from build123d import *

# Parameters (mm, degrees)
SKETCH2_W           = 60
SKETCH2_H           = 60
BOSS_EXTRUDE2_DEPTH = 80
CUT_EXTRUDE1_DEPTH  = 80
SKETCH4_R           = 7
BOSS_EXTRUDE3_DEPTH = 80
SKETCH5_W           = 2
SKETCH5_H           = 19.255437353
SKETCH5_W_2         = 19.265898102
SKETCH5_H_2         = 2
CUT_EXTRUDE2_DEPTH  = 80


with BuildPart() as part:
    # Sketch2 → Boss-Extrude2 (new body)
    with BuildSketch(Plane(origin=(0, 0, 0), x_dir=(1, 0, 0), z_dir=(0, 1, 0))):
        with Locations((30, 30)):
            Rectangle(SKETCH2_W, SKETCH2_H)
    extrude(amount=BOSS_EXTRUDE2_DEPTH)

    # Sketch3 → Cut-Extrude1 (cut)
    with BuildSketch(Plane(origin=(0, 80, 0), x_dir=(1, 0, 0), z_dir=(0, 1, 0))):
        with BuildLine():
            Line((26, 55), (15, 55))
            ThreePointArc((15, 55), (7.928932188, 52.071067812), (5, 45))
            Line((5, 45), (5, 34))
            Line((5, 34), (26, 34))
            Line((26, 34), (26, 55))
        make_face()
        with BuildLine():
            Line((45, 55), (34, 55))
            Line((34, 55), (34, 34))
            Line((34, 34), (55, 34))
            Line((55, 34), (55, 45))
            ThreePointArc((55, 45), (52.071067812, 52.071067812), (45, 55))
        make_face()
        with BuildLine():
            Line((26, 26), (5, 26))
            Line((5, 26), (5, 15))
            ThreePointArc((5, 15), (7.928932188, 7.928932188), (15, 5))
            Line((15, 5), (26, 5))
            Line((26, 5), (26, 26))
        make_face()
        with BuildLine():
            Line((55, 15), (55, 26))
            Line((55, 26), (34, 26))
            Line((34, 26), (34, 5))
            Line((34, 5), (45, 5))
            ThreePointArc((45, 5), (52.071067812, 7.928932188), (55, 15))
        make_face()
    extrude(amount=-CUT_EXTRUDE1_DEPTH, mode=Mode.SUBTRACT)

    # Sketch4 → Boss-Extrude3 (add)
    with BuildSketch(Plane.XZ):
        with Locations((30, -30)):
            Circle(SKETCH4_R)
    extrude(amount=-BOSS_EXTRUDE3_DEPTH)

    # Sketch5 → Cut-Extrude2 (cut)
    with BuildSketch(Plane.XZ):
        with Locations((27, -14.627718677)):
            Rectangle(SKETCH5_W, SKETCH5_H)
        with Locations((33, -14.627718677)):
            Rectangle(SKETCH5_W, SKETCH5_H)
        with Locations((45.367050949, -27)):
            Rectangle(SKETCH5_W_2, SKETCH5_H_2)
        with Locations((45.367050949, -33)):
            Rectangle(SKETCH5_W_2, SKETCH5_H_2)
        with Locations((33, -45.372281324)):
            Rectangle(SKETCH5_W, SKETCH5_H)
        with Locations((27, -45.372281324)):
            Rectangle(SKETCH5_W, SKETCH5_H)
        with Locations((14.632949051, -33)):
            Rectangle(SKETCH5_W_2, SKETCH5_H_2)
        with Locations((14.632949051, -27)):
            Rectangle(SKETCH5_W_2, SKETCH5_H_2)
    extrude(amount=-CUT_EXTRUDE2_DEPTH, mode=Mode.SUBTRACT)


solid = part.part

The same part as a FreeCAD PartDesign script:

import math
import FreeCAD as App
import Part
import Sketcher
from FreeCAD import Vector


def add_polygon(sketch, points):
    """Adds a closed chain of lines whose ends are joined by coincident constraints."""
    first, n = sketch.GeometryCount, len(points)
    for a, b in zip(points, points[1:] + points[:1]):
        sketch.addGeometry(Part.LineSegment(App.Vector(*a, 0), App.Vector(*b, 0)), False)
    for i in range(n):
        sketch.addConstraint(Sketcher.Constraint("Coincident", first + i, 2, first + (i + 1) % n, 1))

doc = App.newDocument("Part")
body = doc.addObject("PartDesign::Body", "Body")

# Sketch on XZ plane
sketch1 = body.newObject("Sketcher::SketchObject", "Sketch")
sketch1.AttachmentSupport = (doc.getObject("XZ_Plane"), [""])
sketch1.MapMode = "FlatFace"
add_polygon(sketch1, [(0, -60), (0, 0), (60, 0), (60, -60)])  # lines 0-3
sketch1.addConstraint([
    Sketcher.Constraint("Vertical", 0),
    Sketcher.Constraint("Horizontal", 1),
    Sketcher.Constraint("Vertical", 2),
    Sketcher.Constraint("Horizontal", 3),
    Sketcher.Constraint("Coincident", 0, 2, -1, 1),
    Sketcher.Constraint("Equal", 3, 0),
    Sketcher.Constraint("DistanceX", 1, 1, 1, 2, 60.0),
])
pad1 = body.newObject("PartDesign::Pad", "Pad")
pad1.Profile = sketch1
pad1.Length = 80
pad1.Reversed = True

# Sketch on XZ plane
sketch2 = body.newObject("Sketcher::SketchObject", "Sketch001")
sketch2.AttachmentSupport = (doc.getObject("XZ_Plane"), [""])
sketch2.MapMode = "FlatFace"
sketch2.AttachmentOffset = App.Placement(Vector(0, 0, -80), App.Rotation())
sketch2.addGeometry([
    Part.LineSegment(Vector(26, -55, 0), Vector(15, -55, 0)),  # 0
    Part.ArcOfCircle(Part.Circle(Vector(15, -45, 0), Vector(0, 0, 1), 10), math.radians(180), math.radians(270)),  # 1
    Part.LineSegment(Vector(5, -45, 0), Vector(5, -34, 0)),  # 2
    Part.LineSegment(Vector(5, -34, 0), Vector(26, -34, 0)),  # 3
    Part.LineSegment(Vector(26, -34, 0), Vector(26, -55, 0)),  # 4
    Part.LineSegment(Vector(45, -55, 0), Vector(34, -55, 0)),  # 5
    Part.LineSegment(Vector(34, -55, 0), Vector(34, -34, 0)),  # 6
    Part.LineSegment(Vector(34, -34, 0), Vector(55, -34, 0)),  # 7
    Part.LineSegment(Vector(55, -34, 0), Vector(55, -45, 0)),  # 8
    Part.ArcOfCircle(Part.Circle(Vector(45, -45, 0), Vector(0, 0, 1), 10), math.radians(-90), math.radians(0)),  # 9
    Part.LineSegment(Vector(26, -26, 0), Vector(5, -26, 0)),  # 10
    Part.LineSegment(Vector(5, -26, 0), Vector(5, -15, 0)),  # 11
    Part.ArcOfCircle(Part.Circle(Vector(15, -15, 0), Vector(0, 0, 1), 10), math.radians(90), math.radians(180)),  # 12
    Part.LineSegment(Vector(15, -5, 0), Vector(26, -5, 0)),  # 13
    Part.LineSegment(Vector(26, -5, 0), Vector(26, -26, 0)),  # 14
    Part.LineSegment(Vector(55, -15, 0), Vector(55, -26, 0)),  # 15
    Part.LineSegment(Vector(55, -26, 0), Vector(34, -26, 0)),  # 16
    Part.LineSegment(Vector(34, -26, 0), Vector(34, -5, 0)),  # 17
    Part.LineSegment(Vector(34, -5, 0), Vector(45, -5, 0)),  # 18
    Part.ArcOfCircle(Part.Circle(Vector(45, -15, 0), Vector(0, 0, 1), 10), math.radians(0), math.radians(90)),  # 19
], False)
sketch2.addConstraint([
    Sketcher.Constraint("Tangent", 0, 2, 1, 2),
    Sketcher.Constraint("Tangent", 1, 1, 2, 1),
    Sketcher.Constraint("Coincident", 2, 2, 3, 1),
    Sketcher.Constraint("Coincident", 3, 2, 4, 1),
    Sketcher.Constraint("Coincident", 4, 2, 0, 1),
    Sketcher.Constraint("Coincident", 5, 2, 6, 1),
    Sketcher.Constraint("Coincident", 6, 2, 7, 1),
    Sketcher.Constraint("Coincident", 7, 2, 8, 1),
    Sketcher.Constraint("Tangent", 8, 2, 9, 2),
    Sketcher.Constraint("Tangent", 9, 1, 5, 1),
    Sketcher.Constraint("Coincident", 10, 2, 11, 1),
    Sketcher.Constraint("Tangent", 11, 2, 12, 2),
    Sketcher.Constraint("Tangent", 12, 1, 13, 1),
    Sketcher.Constraint("Coincident", 13, 2, 14, 1),
    Sketcher.Constraint("Coincident", 14, 2, 10, 1),
    Sketcher.Constraint("Coincident", 15, 2, 16, 1),
    Sketcher.Constraint("Coincident", 16, 2, 17, 1),
    Sketcher.Constraint("Coincident", 17, 2, 18, 1),
    Sketcher.Constraint("Tangent", 18, 2, 19, 2),
    Sketcher.Constraint("Tangent", 19, 1, 15, 1),
    Sketcher.Constraint("Horizontal", 0),
    Sketcher.Constraint("Vertical", 2),
    Sketcher.Constraint("Horizontal", 3),
    Sketcher.Constraint("Vertical", 4),
    Sketcher.Constraint("Horizontal", 5),
    Sketcher.Constraint("Vertical", 6),
    Sketcher.Constraint("Horizontal", 7),
    Sketcher.Constraint("Vertical", 8),
    Sketcher.Constraint("Horizontal", 10),
    Sketcher.Constraint("Vertical", 11),
    Sketcher.Constraint("Horizontal", 13),
    Sketcher.Constraint("Vertical", 14),
    Sketcher.Constraint("Vertical", 15),
    Sketcher.Constraint("Horizontal", 16),
    Sketcher.Constraint("Vertical", 17),
    Sketcher.Constraint("Horizontal", 18),
    Sketcher.Constraint("Equal", 1, 9),
    Sketcher.Constraint("Equal", 9, 12),
    Sketcher.Constraint("Equal", 12, 19),
    Sketcher.Constraint("Horizontal", 1, 3, 9, 3),
    Sketcher.Constraint("Horizontal", 12, 3, 19, 3),
    Sketcher.Constraint("Horizontal", 3, 2, 6, 2),
    Sketcher.Constraint("Horizontal", 14, 2, 15, 2),
    Sketcher.Constraint("Vertical", 1, 3, 12, 3),
    Sketcher.Constraint("Vertical", 9, 3, 19, 3),
    Sketcher.Constraint("Vertical", 4, 2, 13, 2),
    Sketcher.Constraint("Vertical", 6, 2, 16, 2),
    Sketcher.Constraint("Equal", 0, 5),
    Sketcher.Constraint("Equal", 18, 2),
    Sketcher.Constraint("Equal", 8, 11),
    Sketcher.Constraint("Radius", 1, 10.0),
    Sketcher.Constraint("DistanceX", 0, 2, 0, 1, 11.0),
    Sketcher.Constraint("DistanceX", -1, 1, 1, 3, 15.0),
    Sketcher.Constraint("DistanceY", 1, 3, -1, 1, 45.0),
    Sketcher.Constraint("DistanceX", -1, 1, 9, 3, 45.0),
    Sketcher.Constraint("DistanceY", 12, 3, -1, 1, 15.0),
])
pocket1 = body.newObject("PartDesign::Pocket", "Pocket")
pocket1.Profile = sketch2
pocket1.Length = 80
pocket1.Reversed = True

# Sketch on XZ plane
sketch3 = body.newObject("Sketcher::SketchObject", "Sketch002")
sketch3.AttachmentSupport = (doc.getObject("XZ_Plane"), [""])
sketch3.MapMode = "FlatFace"
sketch3.addGeometry(Part.Circle(Vector(30, -30, 0), Vector(0, 0, 1), 7), False)
sketch3.addConstraint([
    Sketcher.Constraint("Diameter", 0, 14.0),
    Sketcher.Constraint("DistanceX", -1, 1, 0, 3, 30.0),
    Sketcher.Constraint("DistanceY", 0, 3, -1, 1, 30.0),
])
pad2 = body.newObject("PartDesign::Pad", "Pad001")
pad2.Profile = sketch3
pad2.Length = 80
pad2.Reversed = True

# Sketch on XZ plane
sketch4 = body.newObject("Sketcher::SketchObject", "Sketch003")
sketch4.AttachmentSupport = (doc.getObject("XZ_Plane"), [""])
sketch4.MapMode = "FlatFace"
add_polygon(sketch4, [(26, -5), (26, -24.255437), (28, -24.255437), (28, -5)])  # lines 0-3
add_polygon(sketch4, [(32, -5), (32, -24.255437), (34, -24.255437), (34, -5)])  # lines 4-7
add_polygon(sketch4, [(35.734102, -26), (35.734102, -28), (55, -28), (55, -26)])  # lines 8-11
add_polygon(sketch4, [(35.734102, -32), (35.734102, -34), (55, -34), (55, -32)])  # lines 12-15
add_polygon(sketch4, [(32, -35.744563), (32, -55), (34, -55), (34, -35.744563)])  # lines 16-19
add_polygon(sketch4, [(26, -35.744563), (26, -55), (28, -55), (28, -35.744563)])  # lines 20-23
add_polygon(sketch4, [(5, -32), (5, -34), (24.265898, -34), (24.265898, -32)])  # lines 24-27
add_polygon(sketch4, [(5, -26), (5, -28), (24.265898, -28), (24.265898, -26)])  # lines 28-31
sketch4.addConstraint([
    Sketcher.Constraint("Vertical", 0),
    Sketcher.Constraint("Horizontal", 1),
    Sketcher.Constraint("Vertical", 2),
    Sketcher.Constraint("Horizontal", 3),
    Sketcher.Constraint("Vertical", 4),
    Sketcher.Constraint("Horizontal", 5),
    Sketcher.Constraint("Vertical", 6),
    Sketcher.Constraint("Horizontal", 7),
    Sketcher.Constraint("Vertical", 8),
    Sketcher.Constraint("Horizontal", 9),
    Sketcher.Constraint("Vertical", 10),
    Sketcher.Constraint("Horizontal", 11),
    Sketcher.Constraint("Vertical", 12),
    Sketcher.Constraint("Horizontal", 13),
    Sketcher.Constraint("Vertical", 14),
    Sketcher.Constraint("Horizontal", 15),
    Sketcher.Constraint("Vertical", 16),
    Sketcher.Constraint("Horizontal", 17),
    Sketcher.Constraint("Vertical", 18),
    Sketcher.Constraint("Horizontal", 19),
    Sketcher.Constraint("Vertical", 20),
    Sketcher.Constraint("Horizontal", 21),
    Sketcher.Constraint("Vertical", 22),
    Sketcher.Constraint("Horizontal", 23),
    Sketcher.Constraint("Vertical", 24),
    Sketcher.Constraint("Horizontal", 25),
    Sketcher.Constraint("Vertical", 26),
    Sketcher.Constraint("Horizontal", 27),
    Sketcher.Constraint("Vertical", 28),
    Sketcher.Constraint("Horizontal", 29),
    Sketcher.Constraint("Vertical", 30),
    Sketcher.Constraint("Horizontal", 31),
    Sketcher.Constraint("Horizontal", 1, 2, 4, 2),
    Sketcher.Constraint("Horizontal", 3, 2, 6, 2),
    Sketcher.Constraint("Horizontal", 17, 2, 20, 2),
    Sketcher.Constraint("Horizontal", 19, 2, 22, 2),
    Sketcher.Constraint("Horizontal", 13, 2, 24, 2),
    Sketcher.Constraint("Horizontal", 15, 2, 26, 2),
    Sketcher.Constraint("Horizontal", 9, 2, 28, 2),
    Sketcher.Constraint("Horizontal", 11, 2, 30, 2),
    Sketcher.Constraint("Vertical", 11, 2, 12, 2),
    Sketcher.Constraint("Vertical", 10, 2, 13, 2),
    Sketcher.Constraint("Vertical", 7, 2, 16, 2),
    Sketcher.Constraint("Vertical", 6, 2, 17, 2),
    Sketcher.Constraint("Vertical", 3, 2, 20, 2),
    Sketcher.Constraint("Vertical", 2, 2, 21, 2),
    Sketcher.Constraint("Vertical", 27, 2, 28, 2),
    Sketcher.Constraint("Vertical", 26, 2, 29, 2),
    Sketcher.Constraint("Equal", 3, 5),
    Sketcher.Constraint("Equal", 15, 25),
    Sketcher.Constraint("Equal", 23, 8),
    Sketcher.Constraint("Equal", 10, 12),
    Sketcher.Constraint("Equal", 6, 16),
    Sketcher.Constraint("DistanceX", 1, 1, 1, 2, 2.0),
    Sketcher.Constraint("DistanceX", -1, 1, 0, 2, 26.0),
    Sketcher.Constraint("DistanceY", 2, 2, -1, 1, 5.0),
    Sketcher.Constraint("DistanceX", -1, 1, 4, 2, 32.0),
    Sketcher.Constraint("DistanceY", 8, 2, -1, 1, 28.0),
    Sketcher.Constraint("DistanceX", -1, 1, 9, 2, 55.0),
    Sketcher.Constraint("DistanceY", 12, 2, -1, 1, 34.0),
    Sketcher.Constraint("DistanceY", 16, 2, -1, 1, 55.0),
    Sketcher.Constraint("DistanceX", -1, 1, 24, 2, 5.0),
    Sketcher.Constraint("DistanceX", 9, 1, 9, 2, 19.265898),
    Sketcher.Constraint("DistanceY", 0, 2, 0, 1, 19.255437),
])
pocket2 = body.newObject("PartDesign::Pocket", "Pocket001")
pocket2.Profile = sketch4
pocket2.Length = 80

doc.recompute()
